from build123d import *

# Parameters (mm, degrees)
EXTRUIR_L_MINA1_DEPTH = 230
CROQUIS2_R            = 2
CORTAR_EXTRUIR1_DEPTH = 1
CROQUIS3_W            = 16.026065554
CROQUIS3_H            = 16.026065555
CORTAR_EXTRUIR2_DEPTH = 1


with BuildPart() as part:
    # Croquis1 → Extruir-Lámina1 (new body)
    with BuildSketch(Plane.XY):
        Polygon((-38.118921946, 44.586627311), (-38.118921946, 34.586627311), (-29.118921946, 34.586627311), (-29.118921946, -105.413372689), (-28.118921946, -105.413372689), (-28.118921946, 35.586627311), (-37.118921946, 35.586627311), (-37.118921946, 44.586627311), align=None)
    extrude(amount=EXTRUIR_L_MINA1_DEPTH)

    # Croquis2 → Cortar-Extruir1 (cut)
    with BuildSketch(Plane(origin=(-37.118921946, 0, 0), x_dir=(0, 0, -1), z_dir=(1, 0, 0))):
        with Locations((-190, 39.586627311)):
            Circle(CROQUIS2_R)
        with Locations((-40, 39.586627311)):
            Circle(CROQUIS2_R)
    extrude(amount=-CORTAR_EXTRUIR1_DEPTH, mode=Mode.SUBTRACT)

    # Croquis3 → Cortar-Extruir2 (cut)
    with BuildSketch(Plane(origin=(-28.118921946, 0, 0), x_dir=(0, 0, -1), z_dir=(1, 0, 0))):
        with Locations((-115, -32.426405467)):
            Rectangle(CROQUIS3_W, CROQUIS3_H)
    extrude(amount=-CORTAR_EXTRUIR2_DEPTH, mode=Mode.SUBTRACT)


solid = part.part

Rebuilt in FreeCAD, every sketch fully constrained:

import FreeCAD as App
import Part
import Sketcher

doc = App.newDocument("Part")
body = doc.addObject("PartDesign::Body", "Body")

# Sketch on XY plane
sketch1 = body.newObject("Sketcher::SketchObject", "Sketch")
sketch1.AttachmentSupport = (doc.getObject("XY_Plane"), [""])
sketch1.MapMode = "FlatFace"
sketch1.addGeometry([
    Part.LineSegment(App.Vector(-38.118922, 44.586627, 0), App.Vector(-38.118922, 34.586627, 0)),  # 0
    Part.LineSegment(App.Vector(-38.118922, 34.586627, 0), App.Vector(-29.118922, 34.586627, 0)),  # 1
    Part.LineSegment(App.Vector(-29.118922, 34.586627, 0), App.Vector(-29.118922, -105.413373, 0)),  # 2
    Part.LineSegment(App.Vector(-29.118922, -105.413373, 0), App.Vector(-28.118922, -105.413373, 0)),  # 3
    Part.LineSegment(App.Vector(-28.118922, -105.413373, 0), App.Vector(-28.118922, 35.586627, 0)),  # 4
    Part.LineSegment(App.Vector(-28.118922, 35.586627, 0), App.Vector(-37.118922, 35.586627, 0)),  # 5
    Part.LineSegment(App.Vector(-37.118922, 35.586627, 0), App.Vector(-37.118922, 44.586627, 0)),  # 6
    Part.LineSegment(App.Vector(-37.118922, 44.586627, 0), App.Vector(-38.118922, 44.586627, 0)),  # 7
], False)
sketch1.addConstraint([
    Sketcher.Constraint("Coincident", 0, 2, 1, 1),
    Sketcher.Constraint("Coincident", 1, 2, 2, 1),
    Sketcher.Constraint("Coincident", 2, 2, 3, 1),
    Sketcher.Constraint("Coincident", 3, 2, 4, 1),
    Sketcher.Constraint("Coincident", 4, 2, 5, 1),
    Sketcher.Constraint("Coincident", 5, 2, 6, 1),
    Sketcher.Constraint("Coincident", 6, 2, 7, 1),
    Sketcher.Constraint("Coincident", 7, 2, 0, 1),
    Sketcher.Constraint("Vertical", 0),
    Sketcher.Constraint("Horizontal", 1),
    Sketcher.Constraint("Vertical", 2),
    Sketcher.Constraint("Horizontal", 3),
    Sketcher.Constraint("Vertical", 4),
    Sketcher.Constraint("Horizontal", 5),
    Sketcher.Constraint("Vertical", 6),
    Sketcher.Constraint("Horizontal", 7),
    Sketcher.Constraint("Equal", 1, 5),
    Sketcher.Constraint("Equal", 5, 6),
    Sketcher.Constraint("DistanceX", 1, 1, 1, 2, 9.0),
    Sketcher.Constraint("DistanceX", 3, 1, 3, 2, 1.0),
    Sketcher.Constraint("DistanceY", 0, 2, 0, 1, 10.0),
    Sketcher.Constraint("DistanceY", 2, 2, 2, 1, 140.0),
    Sketcher.Constraint("DistanceX", 0, 2, -1, 1, 38.118922),
    Sketcher.Constraint("DistanceY", -1, 1, 0, 2, 34.586627),
])
pad1 = body.newObject("PartDesign::Pad", "Pad")
pad1.Profile = sketch1
pad1.Length = 230

# Sketch on YZ plane
sketch2 = body.newObject("Sketcher::SketchObject", "Sketch001")
sketch2.AttachmentSupport = (doc.getObject("YZ_Plane"), [""])
sketch2.MapMode = "FlatFace"
sketch2.AttachmentOffset = App.Placement(App.Vector(0, 0, -37.118922), App.Rotation())
sketch2.addGeometry([
    Part.Circle(App.Vector(39.586627, 190, 0), App.Vector(0, 0, 1), 2),
    Part.Circle(App.Vector(39.586627, 40, 0), App.Vector(0, 0, 1), 2),
], False)
sketch2.addConstraint([
    Sketcher.Constraint("Equal", 0, 1),
    Sketcher.Constraint("Vertical", 0, 3, 1, 3),
    Sketcher.Constraint("Diameter", 0, 4.0),
    Sketcher.Constraint("DistanceY", -1, 1, 0, 3, 190.0),
    Sketcher.Constraint("DistanceY", -1, 1, 1, 3, 40.0),
    Sketcher.Constraint("DistanceX", -1, 1, 0, 3, 39.586627),
])
pocket1 = body.newObject("PartDesign::Pocket", "Pocket")
pocket1.Profile = sketch2
pocket1.Length = 1

# Sketch on YZ plane
sketch3 = body.newObject("Sketcher::SketchObject", "Sketch002")
sketch3.AttachmentSupport = (doc.getObject("YZ_Plane"), [""])
sketch3.MapMode = "FlatFace"
sketch3.AttachmentOffset = App.Placement(App.Vector(0, 0, -28.118922), App.Rotation())
sketch3.addGeometry([
    Part.LineSegment(App.Vector(-24.413373, 123.013033, 0), App.Vector(-40.439438, 123.013033, 0)),
    Part.LineSegment(App.Vector(-40.439438, 123.013033, 0), App.Vector(-40.439438, 106.986967, 0)),
    Part.LineSegment(App.Vector(-40.439438, 106.986967, 0), App.Vector(-24.413373, 106.986967, 0)),
    Part.LineSegment(App.Vector(-24.413373, 106.986967, 0), App.Vector(-24.413373, 123.013033, 0)),
], False)
sketch3.addConstraint([
    Sketcher.Constraint("Coincident", 0, 2, 1, 1),
    Sketcher.Constraint("Coincident", 1, 2, 2, 1),
    Sketcher.Constraint("Coincident", 2, 2, 3, 1),
    Sketcher.Constraint("Coincident", 3, 2, 0, 1),
    Sketcher.Constraint("Horizontal", 0),
    Sketcher.Constraint("Vertical", 1),
    Sketcher.Constraint("Horizontal", 2),
    Sketcher.Constraint("Vertical", 3),
    Sketcher.Constraint("Equal", 2, 1),
    Sketcher.Constraint("DistanceX", 0, 2, 0, 1, 16.026066),
    Sketcher.Constraint("DistanceX", 0, 2, -1, 1, 40.439438),
    Sketcher.Constraint("DistanceY", -1, 1, 0, 2, 123.013033),
])
pocket2 = body.newObject("PartDesign::Pocket", "Pocket001")
pocket2.Profile = sketch3
pocket2.Length = 1

doc.recompute()
